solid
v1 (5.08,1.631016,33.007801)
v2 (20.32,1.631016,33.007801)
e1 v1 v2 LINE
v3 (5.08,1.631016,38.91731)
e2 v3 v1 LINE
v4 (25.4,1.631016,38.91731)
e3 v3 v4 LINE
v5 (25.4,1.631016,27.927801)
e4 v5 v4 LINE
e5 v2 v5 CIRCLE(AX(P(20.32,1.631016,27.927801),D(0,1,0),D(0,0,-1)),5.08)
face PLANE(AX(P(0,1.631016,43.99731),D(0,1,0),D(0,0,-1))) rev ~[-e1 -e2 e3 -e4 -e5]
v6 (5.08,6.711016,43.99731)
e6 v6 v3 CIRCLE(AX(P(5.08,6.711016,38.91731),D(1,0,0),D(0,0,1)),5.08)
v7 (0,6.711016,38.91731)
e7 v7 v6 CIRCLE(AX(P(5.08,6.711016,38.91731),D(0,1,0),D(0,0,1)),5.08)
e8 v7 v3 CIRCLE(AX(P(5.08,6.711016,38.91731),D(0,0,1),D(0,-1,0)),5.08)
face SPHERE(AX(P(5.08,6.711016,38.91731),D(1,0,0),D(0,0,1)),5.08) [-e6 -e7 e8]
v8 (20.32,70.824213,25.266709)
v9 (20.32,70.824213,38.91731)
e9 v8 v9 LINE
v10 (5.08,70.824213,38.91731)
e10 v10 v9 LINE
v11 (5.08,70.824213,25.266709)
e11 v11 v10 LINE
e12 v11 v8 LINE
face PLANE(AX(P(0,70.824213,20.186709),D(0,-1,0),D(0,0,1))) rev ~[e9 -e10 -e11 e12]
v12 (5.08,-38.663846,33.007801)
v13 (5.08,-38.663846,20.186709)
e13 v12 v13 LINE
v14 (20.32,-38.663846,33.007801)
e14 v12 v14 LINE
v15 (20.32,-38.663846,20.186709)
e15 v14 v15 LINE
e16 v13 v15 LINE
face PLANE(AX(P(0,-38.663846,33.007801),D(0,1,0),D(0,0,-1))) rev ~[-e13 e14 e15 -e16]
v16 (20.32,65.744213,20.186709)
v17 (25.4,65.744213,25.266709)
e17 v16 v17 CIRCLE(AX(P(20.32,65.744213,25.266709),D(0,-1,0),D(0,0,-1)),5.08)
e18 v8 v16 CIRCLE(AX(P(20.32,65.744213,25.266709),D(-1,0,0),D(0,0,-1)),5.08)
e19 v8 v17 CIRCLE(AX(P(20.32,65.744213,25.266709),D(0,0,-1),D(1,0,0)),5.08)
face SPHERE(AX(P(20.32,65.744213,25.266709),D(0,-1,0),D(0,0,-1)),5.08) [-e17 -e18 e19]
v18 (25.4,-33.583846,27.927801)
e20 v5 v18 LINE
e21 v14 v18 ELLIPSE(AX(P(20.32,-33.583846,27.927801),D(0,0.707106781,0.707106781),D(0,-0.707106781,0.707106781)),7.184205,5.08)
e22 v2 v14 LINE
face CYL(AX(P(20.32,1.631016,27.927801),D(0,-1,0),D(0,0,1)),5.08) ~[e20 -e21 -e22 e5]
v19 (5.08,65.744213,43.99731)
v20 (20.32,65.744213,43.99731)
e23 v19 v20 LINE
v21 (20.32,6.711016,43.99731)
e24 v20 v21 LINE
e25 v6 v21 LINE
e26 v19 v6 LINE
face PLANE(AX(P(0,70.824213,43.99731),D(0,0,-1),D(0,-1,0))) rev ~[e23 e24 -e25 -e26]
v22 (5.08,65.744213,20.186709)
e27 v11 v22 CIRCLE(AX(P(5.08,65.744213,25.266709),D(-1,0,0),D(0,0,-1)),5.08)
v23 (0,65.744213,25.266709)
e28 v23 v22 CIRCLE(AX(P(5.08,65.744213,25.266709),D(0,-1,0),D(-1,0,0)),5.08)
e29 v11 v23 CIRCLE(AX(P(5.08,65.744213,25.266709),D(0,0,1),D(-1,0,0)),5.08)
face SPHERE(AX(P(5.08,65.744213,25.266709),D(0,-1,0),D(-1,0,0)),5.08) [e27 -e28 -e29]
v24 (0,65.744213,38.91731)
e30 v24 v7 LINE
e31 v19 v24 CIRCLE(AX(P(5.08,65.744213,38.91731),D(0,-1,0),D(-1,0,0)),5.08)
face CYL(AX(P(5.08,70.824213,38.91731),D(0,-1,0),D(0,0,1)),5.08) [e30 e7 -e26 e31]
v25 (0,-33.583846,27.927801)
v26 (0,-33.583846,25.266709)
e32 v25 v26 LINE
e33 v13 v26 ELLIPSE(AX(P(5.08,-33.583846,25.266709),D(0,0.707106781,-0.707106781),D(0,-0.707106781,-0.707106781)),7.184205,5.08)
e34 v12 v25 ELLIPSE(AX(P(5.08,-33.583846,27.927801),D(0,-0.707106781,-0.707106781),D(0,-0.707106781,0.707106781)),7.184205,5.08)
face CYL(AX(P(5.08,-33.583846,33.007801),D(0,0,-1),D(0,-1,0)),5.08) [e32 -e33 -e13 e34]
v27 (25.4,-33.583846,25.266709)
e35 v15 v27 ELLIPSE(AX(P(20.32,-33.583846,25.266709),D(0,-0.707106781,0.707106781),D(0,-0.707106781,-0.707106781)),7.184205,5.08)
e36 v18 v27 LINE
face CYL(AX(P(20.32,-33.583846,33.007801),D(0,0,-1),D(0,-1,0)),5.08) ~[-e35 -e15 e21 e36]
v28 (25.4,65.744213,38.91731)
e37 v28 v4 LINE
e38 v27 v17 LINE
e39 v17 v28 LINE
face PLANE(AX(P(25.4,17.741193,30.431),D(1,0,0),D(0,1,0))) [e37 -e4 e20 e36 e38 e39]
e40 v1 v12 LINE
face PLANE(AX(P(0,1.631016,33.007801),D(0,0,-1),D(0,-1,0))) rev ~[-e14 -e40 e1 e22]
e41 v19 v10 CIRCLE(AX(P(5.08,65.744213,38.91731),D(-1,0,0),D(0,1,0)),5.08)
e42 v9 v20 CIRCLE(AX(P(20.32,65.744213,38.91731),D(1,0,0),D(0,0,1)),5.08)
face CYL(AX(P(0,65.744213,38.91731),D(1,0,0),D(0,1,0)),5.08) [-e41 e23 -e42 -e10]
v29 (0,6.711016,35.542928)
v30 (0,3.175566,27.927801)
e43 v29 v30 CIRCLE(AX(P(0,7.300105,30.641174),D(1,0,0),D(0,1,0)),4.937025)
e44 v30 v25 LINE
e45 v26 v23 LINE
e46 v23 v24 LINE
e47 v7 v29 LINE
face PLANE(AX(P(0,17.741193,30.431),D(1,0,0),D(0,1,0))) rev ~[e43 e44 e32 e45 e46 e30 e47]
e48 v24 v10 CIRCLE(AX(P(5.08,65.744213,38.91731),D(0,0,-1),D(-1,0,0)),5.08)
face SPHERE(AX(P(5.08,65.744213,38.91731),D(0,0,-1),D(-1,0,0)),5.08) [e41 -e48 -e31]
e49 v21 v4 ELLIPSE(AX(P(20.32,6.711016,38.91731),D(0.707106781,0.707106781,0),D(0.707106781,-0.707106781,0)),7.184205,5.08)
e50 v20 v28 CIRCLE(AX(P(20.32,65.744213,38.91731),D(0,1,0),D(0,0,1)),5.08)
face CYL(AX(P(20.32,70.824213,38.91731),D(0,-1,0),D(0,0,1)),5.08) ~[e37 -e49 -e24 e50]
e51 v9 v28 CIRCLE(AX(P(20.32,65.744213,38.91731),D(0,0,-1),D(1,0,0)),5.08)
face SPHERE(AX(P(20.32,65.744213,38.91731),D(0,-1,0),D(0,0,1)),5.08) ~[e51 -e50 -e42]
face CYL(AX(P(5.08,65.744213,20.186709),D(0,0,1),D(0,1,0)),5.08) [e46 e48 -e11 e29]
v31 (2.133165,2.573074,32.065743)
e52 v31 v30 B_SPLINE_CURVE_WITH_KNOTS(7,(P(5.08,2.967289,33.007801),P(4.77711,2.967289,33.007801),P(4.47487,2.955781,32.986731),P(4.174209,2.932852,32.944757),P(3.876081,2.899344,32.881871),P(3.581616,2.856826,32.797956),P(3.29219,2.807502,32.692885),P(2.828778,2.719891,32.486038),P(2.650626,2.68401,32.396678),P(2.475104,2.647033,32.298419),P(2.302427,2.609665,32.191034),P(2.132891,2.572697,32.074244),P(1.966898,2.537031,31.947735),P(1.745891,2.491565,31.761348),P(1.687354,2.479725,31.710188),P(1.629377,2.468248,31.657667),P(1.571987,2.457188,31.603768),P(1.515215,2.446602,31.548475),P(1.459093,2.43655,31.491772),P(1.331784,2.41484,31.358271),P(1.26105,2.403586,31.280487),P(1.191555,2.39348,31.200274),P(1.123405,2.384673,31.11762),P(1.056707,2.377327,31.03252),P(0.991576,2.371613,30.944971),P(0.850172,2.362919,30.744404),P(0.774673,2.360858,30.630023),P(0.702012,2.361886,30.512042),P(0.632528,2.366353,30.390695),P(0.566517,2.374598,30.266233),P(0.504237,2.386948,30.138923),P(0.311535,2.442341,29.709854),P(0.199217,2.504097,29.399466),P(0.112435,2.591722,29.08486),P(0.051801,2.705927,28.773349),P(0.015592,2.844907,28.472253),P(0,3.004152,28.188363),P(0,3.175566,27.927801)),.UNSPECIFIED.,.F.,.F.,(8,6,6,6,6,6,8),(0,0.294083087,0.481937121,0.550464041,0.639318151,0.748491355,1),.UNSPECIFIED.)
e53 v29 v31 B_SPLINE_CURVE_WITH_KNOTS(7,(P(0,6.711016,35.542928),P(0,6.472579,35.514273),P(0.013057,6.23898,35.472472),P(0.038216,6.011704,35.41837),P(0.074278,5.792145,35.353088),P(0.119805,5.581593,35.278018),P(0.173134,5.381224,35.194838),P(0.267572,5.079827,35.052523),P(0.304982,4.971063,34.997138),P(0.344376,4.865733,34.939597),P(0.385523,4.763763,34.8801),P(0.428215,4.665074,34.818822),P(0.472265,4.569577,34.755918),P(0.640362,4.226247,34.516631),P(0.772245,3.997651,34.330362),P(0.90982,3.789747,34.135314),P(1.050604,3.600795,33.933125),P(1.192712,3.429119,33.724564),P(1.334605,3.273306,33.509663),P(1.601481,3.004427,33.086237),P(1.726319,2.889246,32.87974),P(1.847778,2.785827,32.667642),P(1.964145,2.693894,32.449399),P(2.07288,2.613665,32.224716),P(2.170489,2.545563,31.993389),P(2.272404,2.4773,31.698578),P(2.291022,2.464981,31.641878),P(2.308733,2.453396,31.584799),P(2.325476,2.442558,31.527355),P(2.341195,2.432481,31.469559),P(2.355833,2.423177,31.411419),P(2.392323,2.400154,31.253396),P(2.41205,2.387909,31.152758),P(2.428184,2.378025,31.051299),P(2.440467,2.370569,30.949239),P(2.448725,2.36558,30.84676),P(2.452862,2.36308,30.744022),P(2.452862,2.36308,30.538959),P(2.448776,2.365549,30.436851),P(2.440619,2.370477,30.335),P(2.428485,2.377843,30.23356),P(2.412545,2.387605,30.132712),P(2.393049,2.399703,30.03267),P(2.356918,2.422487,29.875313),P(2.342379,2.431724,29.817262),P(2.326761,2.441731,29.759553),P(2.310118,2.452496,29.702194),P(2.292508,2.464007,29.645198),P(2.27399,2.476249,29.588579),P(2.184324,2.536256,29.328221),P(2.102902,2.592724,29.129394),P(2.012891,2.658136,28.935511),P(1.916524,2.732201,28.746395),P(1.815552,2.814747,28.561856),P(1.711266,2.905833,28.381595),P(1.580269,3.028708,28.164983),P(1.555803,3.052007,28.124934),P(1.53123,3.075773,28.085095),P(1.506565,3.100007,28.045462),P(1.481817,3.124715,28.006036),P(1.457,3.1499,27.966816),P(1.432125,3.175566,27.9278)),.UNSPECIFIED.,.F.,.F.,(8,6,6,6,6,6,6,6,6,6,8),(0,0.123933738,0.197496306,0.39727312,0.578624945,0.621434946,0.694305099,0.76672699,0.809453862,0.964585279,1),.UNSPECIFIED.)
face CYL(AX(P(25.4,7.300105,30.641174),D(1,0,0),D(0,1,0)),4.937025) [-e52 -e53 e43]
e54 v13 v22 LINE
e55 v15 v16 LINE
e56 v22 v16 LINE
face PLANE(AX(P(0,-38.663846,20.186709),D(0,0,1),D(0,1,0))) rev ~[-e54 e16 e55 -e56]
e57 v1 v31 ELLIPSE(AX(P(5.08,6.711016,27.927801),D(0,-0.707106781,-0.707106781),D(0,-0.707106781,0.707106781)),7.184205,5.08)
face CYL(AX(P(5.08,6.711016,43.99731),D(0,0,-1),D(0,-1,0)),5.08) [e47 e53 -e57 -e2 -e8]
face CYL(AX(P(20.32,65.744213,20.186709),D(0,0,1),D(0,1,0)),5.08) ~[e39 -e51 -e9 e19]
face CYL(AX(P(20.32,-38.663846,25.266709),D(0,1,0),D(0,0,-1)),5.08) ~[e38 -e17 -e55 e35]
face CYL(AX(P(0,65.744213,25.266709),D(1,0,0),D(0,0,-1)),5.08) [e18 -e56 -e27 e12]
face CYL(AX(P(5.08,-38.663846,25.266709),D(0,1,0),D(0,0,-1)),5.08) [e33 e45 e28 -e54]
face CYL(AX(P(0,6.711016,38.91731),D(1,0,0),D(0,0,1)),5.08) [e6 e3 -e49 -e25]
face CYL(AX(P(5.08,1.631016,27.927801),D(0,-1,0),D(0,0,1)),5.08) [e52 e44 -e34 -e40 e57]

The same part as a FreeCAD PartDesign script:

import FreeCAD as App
import Part
import Sketcher

V = App.Vector


def edges_at(feature, points):
    """Names of the edges that pass closest to the given points."""
    edges = feature.Shape.Edges
    near = lambda p: min(range(len(edges)), key=lambda i: edges[i].distToShape(Part.Vertex(*p))[0])
    return sorted({f"Edge{near(p) + 1}" for p in points})

doc = App.newDocument("Part")
params = doc.addObject("Spreadsheet::Sheet", "Params")
for row, (alias, value) in enumerate([
    ("pad1_length", "1 in"),
    ("fillet_radius", "0.2 in"),
    ("pad2_length", "1 in"),
], start=1):
    params.set(f"A{row}", alias)
    params.set(f"B{row}", "=" + value)
    params.setAlias(f"B{row}", alias)

body = doc.addObject("PartDesign::Body", "Body")

sketch1 = doc.addObject("Sketcher::SketchObject", "Sketch")
body.addObject(sketch1)
sketch1.AttachmentSupport = (doc.YZ_Plane, [""])
sketch1.MapMode = "FlatFace"
sketch1.addGeometry(Part.LineSegment(V(1.631016, 33.007801, 0), V(-38.663846, 33.007801, 0)), False)
sketch1.addGeometry(Part.LineSegment(V(-38.663846, 33.007801, 0), V(-38.663846, 20.186709, 0)), False)
sketch1.addGeometry(Part.LineSegment(V(-38.663846, 20.186709, 0), V(70.824213, 20.186709, 0)), False)
sketch1.addGeometry(Part.LineSegment(V(70.824213, 20.186709, 0), V(70.824213, 43.99731, 0)), False)
sketch1.addGeometry(Part.LineSegment(V(70.824213, 43.99731, 0), V(1.631016, 43.99731, 0)), False)
sketch1.addGeometry(Part.LineSegment(V(1.631016, 43.99731, 0), V(1.631016, 33.007801, 0)), False)
sketch1.addConstraint(Sketcher.Constraint("Coincident", 0, 2, 1, 1))
sketch1.addConstraint(Sketcher.Constraint("Coincident", 1, 2, 2, 1))
sketch1.addConstraint(Sketcher.Constraint("Coincident", 2, 2, 3, 1))
sketch1.addConstraint(Sketcher.Constraint("Coincident", 3, 2, 4, 1))
sketch1.addConstraint(Sketcher.Constraint("Coincident", 4, 2, 5, 1))
sketch1.addConstraint(Sketcher.Constraint("Coincident", 5, 2, 0, 1))
sketch1.addConstraint(Sketcher.Constraint("Horizontal", 0))
sketch1.addConstraint(Sketcher.Constraint("Vertical", 1))
sketch1.addConstraint(Sketcher.Constraint("Horizontal", 2))
sketch1.addConstraint(Sketcher.Constraint("Vertical", 3))
sketch1.addConstraint(Sketcher.Constraint("Horizontal", 4))
sketch1.addConstraint(Sketcher.Constraint("Vertical", 5))
sketch1.addConstraint(Sketcher.Constraint("DistanceY", 3, 1, 3, 2, 23.810601))
sketch1.addConstraint(Sketcher.Constraint("DistanceX", 2, 1, 2, 2, 109.488059))
sketch1.addConstraint(Sketcher.Constraint("DistanceY", 5, 2, 5, 1, 10.989509))
sketch1.addConstraint(Sketcher.Constraint("DistanceY", -1, 1, 0, 2, 33.007801))
sketch1.addConstraint(Sketcher.Constraint("DistanceX", 0, 2, 0, 1, 40.294862))
sketch1.addConstraint(Sketcher.Constraint("DistanceX", 0, 2, -1, 1, 38.663846))
pad1 = doc.addObject("PartDesign::Pad", "Pad")
body.addObject(pad1)
pad1.Profile = sketch1
pad1.setExpression("Length", "Params.pad1_length")
doc.recompute()

fillet = doc.addObject("PartDesign::Fillet", "Fillet")
body.addObject(fillet)
fillet.Base = (pad1, edges_at(pad1, [
    (25.4, 36.228, 43.997),
    (25.4, -18.516, 33.008),
    (12.7, 1.631, 43.997),
    (0, -18.516, 33.008),
    (25.4, -38.664, 26.597),
    (0, -38.664, 26.597),
    (25.4, 16.08, 20.187),
    (0, 16.08, 20.187),
    (0, 70.824, 32.092),
    (0, 36.228, 43.997),
    (0, 1.631, 38.503),
    (12.7, 70.824, 20.187),
    (12.7, 70.824, 43.997),
    (25.4, 70.824, 32.092),
]))
fillet.setExpression("Radius", "Params.fillet_radius")

sketch2 = doc.addObject("Sketcher::SketchObject", "Sketch001")
body.addObject(sketch2)
sketch2.AttachmentSupport = (doc.YZ_Plane, [""])
sketch2.MapMode = "FlatFace"
sketch2.AttachmentOffset = App.Placement(V(0, 0, 1 * 25.4), App.Rotation())
sketch2.addGeometry(Part.Circle(V(56.599278, 32.443203, 0), V(0, 0, 1), 6.157745), False)
sketch2.addGeometry(Part.LineSegment(V(57.057884, 29.696051, 0), V(56.599278, 29.696051, 0)), False)
sketch2.addGeometry(Part.LineSegment(V(56.599278, 29.696051, 0), V(56.599278, 32.443203, 0)), False)
sketch2.addGeometry(Part.LineSegment(V(56.599278, 32.443203, 0), V(57.057884, 32.443203, 0)), False)
sketch2.addGeometry(Part.LineSegment(V(57.057884, 32.443203, 0), V(57.057884, 29.696051, 0)), False)
sketch2.addGeometry(Part.Circle(V(7.300105, 30.641174, 0), V(0, 0, 1), 4.937025), False)
sketch2.addConstraint(Sketcher.Constraint("Coincident", 1, 2, 2, 1))
sketch2.addConstraint(Sketcher.Constraint("Coincident", 2, 2, 3, 1))
sketch2.addConstraint(Sketcher.Constraint("Coincident", 3, 2, 4, 1))
sketch2.addConstraint(Sketcher.Constraint("Coincident", 4, 2, 1, 1))
sketch2.addConstraint(Sketcher.Constraint("Horizontal", 1))
sketch2.addConstraint(Sketcher.Constraint("Vertical", 2))
sketch2.addConstraint(Sketcher.Constraint("Horizontal", 3))
sketch2.addConstraint(Sketcher.Constraint("Vertical", 4))
sketch2.addConstraint(Sketcher.Constraint("Coincident", 2, 2, 0, 3))
sketch2.addConstraint(Sketcher.Constraint("Diameter", 0, 12.31549))
sketch2.addConstraint(Sketcher.Constraint("Diameter", 5, 9.87405))
sketch2.addConstraint(Sketcher.Constraint("DistanceY", 2, 1, 2, 2, 2.747152))
sketch2.addConstraint(Sketcher.Constraint("DistanceX", 1, 2, 1, 1, 0.458606))
sketch2.addConstraint(Sketcher.Constraint("DistanceY", -1, 1, 1, 2, 29.696051))
sketch2.addConstraint(Sketcher.Constraint("DistanceY", 5, 3, 0, 3, 1.802029))
sketch2.addConstraint(Sketcher.Constraint("DistanceX", 5, 3, 3, 2, 49.757779))
sketch2.addConstraint(Sketcher.Constraint("DistanceX", -1, 1, 0, 3, 56.599278))
pad2 = doc.addObject("PartDesign::Pad", "Pad001")
body.addObject(pad2)
pad2.Profile = sketch2
pad2.setExpression("Length", "Params.pad2_length")
pad2.Reversed = True

doc.recompute()
